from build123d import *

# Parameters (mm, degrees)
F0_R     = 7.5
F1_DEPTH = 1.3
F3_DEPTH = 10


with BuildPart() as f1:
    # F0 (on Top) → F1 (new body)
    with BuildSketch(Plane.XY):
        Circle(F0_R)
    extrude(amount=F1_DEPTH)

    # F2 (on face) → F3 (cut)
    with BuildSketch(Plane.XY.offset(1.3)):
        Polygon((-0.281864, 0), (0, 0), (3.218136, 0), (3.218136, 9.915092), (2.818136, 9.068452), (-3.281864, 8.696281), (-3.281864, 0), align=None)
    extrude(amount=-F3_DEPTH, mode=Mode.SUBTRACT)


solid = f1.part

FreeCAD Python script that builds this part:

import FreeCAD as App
import Part
import Sketcher

V = App.Vector
Q = App.Units.Quantity

doc = App.newDocument("Part")
body = doc.addObject("PartDesign::Body", "Body")

sketch1 = doc.addObject("Sketcher::SketchObject", "Sketch")
body.addObject(sketch1)
sketch1.AttachmentSupport = (doc.XY_Plane, [""])
sketch1.MapMode = "FlatFace"
sketch1.addGeometry(Part.Circle(V(0, 0, 0), V(0, 0, 1), 8), False)
sketch1.addConstraint(Sketcher.Constraint("Coincident", 0, 3, -1, 1))
sketch1.addConstraint(Sketcher.Constraint("Diameter", 0, Q("15 mm")))
pad1 = doc.addObject("PartDesign::Pad", "Pad")
body.addObject(pad1)
pad1.Profile = sketch1
pad1.Length = 1.3

sketch2 = doc.addObject("Sketcher::SketchObject", "Sketch001")
body.addObject(sketch2)
sketch2.AttachmentSupport = (doc.XY_Plane, [""])
sketch2.MapMode = "FlatFace"
sketch2.AttachmentOffset = App.Placement(V(0, 0, 1.3), App.Rotation())
sketch2.addGeometry(Part.LineSegment(V(3.2, 0, 0), V(3.2, 9.9, 0)), False)
sketch2.addGeometry(Part.LineSegment(V(3.2, 9.9, 0), V(2.8, 9.1, 0)), False)
sketch2.addGeometry(Part.LineSegment(V(2.8, 9.1, 0), V(-3.3, 8.7, 0)), False)
sketch2.addGeometry(Part.LineSegment(V(-3.3, 8.7, 0), V(-3.3, 0, 0)), False)
sketch2.addGeometry(Part.LineSegment(V(-3.3, 0, 0), V(3.2, 0, 0)), False)
sketch2.addConstraint(Sketcher.Constraint("Coincident", 0, 2, 1, 1))
sketch2.addConstraint(Sketcher.Constraint("Coincident", 1, 2, 2, 1))
sketch2.addConstraint(Sketcher.Constraint("Coincident", 2, 2, 3, 1))
sketch2.addConstraint(Sketcher.Constraint("Coincident", 3, 2, 4, 1))
sketch2.addConstraint(Sketcher.Constraint("Coincident", 4, 2, 0, 1))
sketch2.addConstraint(Sketcher.Constraint("Vertical", 0))
sketch2.addConstraint(Sketcher.Constraint("Vertical", 3))
sketch2.addConstraint(Sketcher.Constraint("Horizontal", 4))
sketch2.addConstraint(Sketcher.Constraint("PointOnObject", 3, 2, -1))
sketch2.addConstraint(Sketcher.Constraint("DistanceX", 4, 1, 4, 2, Q("6.5 mm")))
sketch2.addConstraint(Sketcher.Constraint("DistanceX", 1, 2, 0, 2, Q("0.4 mm")))
sketch2.addConstraint(Sketcher.Constraint("DistanceY", 3, 2, 3, 1, Q("8.696281 mm")))
sketch2.addConstraint(Sketcher.Constraint("DistanceY", 0, 1, 0, 2, Q("9.915092 mm")))
sketch2.addConstraint(Sketcher.Constraint("DistanceY", 1, 2, 0, 2, Q("0.84664 mm")))
sketch2.addConstraint(Sketcher.Constraint("DistanceX", -1, 1, 0, 2, Q("3.218136 mm")))
pocket1 = doc.addObject("PartDesign::Pocket", "Pocket")
body.addObject(pocket1)
pocket1.Profile = sketch2
pocket1.Length = 10

doc.recompute()
